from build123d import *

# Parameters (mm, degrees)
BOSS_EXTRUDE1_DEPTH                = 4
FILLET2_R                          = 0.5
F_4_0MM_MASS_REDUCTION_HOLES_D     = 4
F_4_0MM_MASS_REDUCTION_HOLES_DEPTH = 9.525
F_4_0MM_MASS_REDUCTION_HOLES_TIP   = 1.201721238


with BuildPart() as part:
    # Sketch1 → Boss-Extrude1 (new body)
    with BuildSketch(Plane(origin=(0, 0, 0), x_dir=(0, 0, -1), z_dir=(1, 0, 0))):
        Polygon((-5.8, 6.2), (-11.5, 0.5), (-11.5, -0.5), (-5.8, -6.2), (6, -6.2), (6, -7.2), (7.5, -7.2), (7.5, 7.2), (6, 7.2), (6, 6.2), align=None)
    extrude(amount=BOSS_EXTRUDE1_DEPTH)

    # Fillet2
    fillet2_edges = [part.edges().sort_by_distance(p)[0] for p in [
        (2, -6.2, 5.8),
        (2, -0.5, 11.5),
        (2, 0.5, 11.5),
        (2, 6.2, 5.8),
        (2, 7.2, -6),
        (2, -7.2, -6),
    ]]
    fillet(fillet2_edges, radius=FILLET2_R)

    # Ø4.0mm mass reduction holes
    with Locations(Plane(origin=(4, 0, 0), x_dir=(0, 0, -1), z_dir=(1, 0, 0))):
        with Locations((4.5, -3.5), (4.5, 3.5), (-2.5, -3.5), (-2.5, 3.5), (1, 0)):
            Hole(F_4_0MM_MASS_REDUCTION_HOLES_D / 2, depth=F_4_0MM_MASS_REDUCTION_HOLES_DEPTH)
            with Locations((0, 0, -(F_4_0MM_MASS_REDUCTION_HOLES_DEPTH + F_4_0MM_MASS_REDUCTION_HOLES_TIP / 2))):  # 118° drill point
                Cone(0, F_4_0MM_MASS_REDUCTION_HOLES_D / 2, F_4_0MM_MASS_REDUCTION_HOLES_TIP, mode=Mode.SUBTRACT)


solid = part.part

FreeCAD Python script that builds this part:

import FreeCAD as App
import Part
import Sketcher

V = App.Vector
Q = App.Units.Quantity


def edges_at(feature, points):
    """Names of the edges that pass closest to the given points."""
    edges = feature.Shape.Edges
    near = lambda p: min(range(len(edges)), key=lambda i: edges[i].distToShape(Part.Vertex(*p))[0])
    return sorted({f"Edge{near(p) + 1}" for p in points})

doc = App.newDocument("Part")
body = doc.addObject("PartDesign::Body", "Body")

sketch1 = body.newObject("Sketcher::SketchObject", "Sketch")
sketch1.AttachmentSupport = (doc.getObject("YZ_Plane"), [""])
sketch1.MapMode = "FlatFace"
sketch1.addGeometry([
    Part.LineSegment(V(6.2, 5.8, 0), V(0.5, 11.5, 0)),
    Part.LineSegment(V(0.5, 11.5, 0), V(-0.5, 11.5, 0)),
    Part.LineSegment(V(-0.5, 11.5, 0), V(-6.2, 5.8, 0)),
    Part.LineSegment(V(-6.2, 5.8, 0), V(-6.2, -6, 0)),
    Part.LineSegment(V(-6.2, -6, 0), V(-7.2, -6, 0)),
    Part.LineSegment(V(-7.2, -6, 0), V(-7.2, -7.5, 0)),
    Part.LineSegment(V(-7.2, -7.5, 0), V(7.2, -7.5, 0)),
    Part.LineSegment(V(7.2, -7.5, 0), V(7.2, -6, 0)),
    Part.LineSegment(V(7.2, -6, 0), V(6.2, -6, 0)),
    Part.LineSegment(V(6.2, -6, 0), V(6.2, 5.8, 0)),
], False)
sketch1.addConstraint([
    Sketcher.Constraint("Coincident", 0, 2, 1, 1),
    Sketcher.Constraint("Coincident", 1, 2, 2, 1),
    Sketcher.Constraint("Coincident", 2, 2, 3, 1),
    Sketcher.Constraint("Coincident", 3, 2, 4, 1),
    Sketcher.Constraint("Coincident", 4, 2, 5, 1),
    Sketcher.Constraint("Coincident", 5, 2, 6, 1),
    Sketcher.Constraint("Coincident", 6, 2, 7, 1),
    Sketcher.Constraint("Coincident", 7, 2, 8, 1),
    Sketcher.Constraint("Coincident", 8, 2, 9, 1),
    Sketcher.Constraint("Coincident", 9, 2, 0, 1),
    Sketcher.Constraint("Horizontal", 1),
    Sketcher.Constraint("Vertical", 3),
    Sketcher.Constraint("Horizontal", 4),
    Sketcher.Constraint("Vertical", 5),
    Sketcher.Constraint("Horizontal", 6),
    Sketcher.Constraint("Vertical", 7),
    Sketcher.Constraint("Horizontal", 8),
    Sketcher.Constraint("Vertical", 9),
    Sketcher.Constraint("Symmetric", 4, 2, 7, 2, -2),
    Sketcher.Constraint("Symmetric", 2, 2, 9, 2, -2),
    Sketcher.Constraint("Perpendicular", 0, 2),
    Sketcher.Constraint("Equal", 1, 4),
    Sketcher.Constraint("Equal", 0, 2),
    Sketcher.Constraint("DistanceX", 1, 2, 1, 1, Q("1 mm")),
    Sketcher.Constraint("DistanceX", 6, 1, 6, 2, Q("14.4 mm")),
    Sketcher.Constraint("DistanceY", 3, 2, 3, 1, Q("11.8 mm")),
    Sketcher.Constraint("DistanceY", 5, 2, 5, 1, Q("1.5 mm")),
    Sketcher.Constraint("DistanceY", 3, 2, -1, 1, Q("6 mm")),
])
pad1 = body.newObject("PartDesign::Pad", "Pad")
pad1.Profile = sketch1
pad1.Length = 4
doc.recompute()

fillet = body.newObject("PartDesign::Fillet", "Fillet")
fillet.Base = (pad1, edges_at(pad1, [
    (2, -6.2, 5.8),
    (2, -0.5, 11.5),
    (2, 0.5, 11.5),
    (2, 6.2, 5.8),
    (2, 7.2, -6),
    (2, -7.2, -6),
]))
fillet.Radius = 0.5

sketch2 = body.newObject("Sketcher::SketchObject", "Sketch001")
sketch2.AttachmentSupport = (doc.getObject("YZ_Plane"), [""])
sketch2.MapMode = "FlatFace"
sketch2.AttachmentOffset = App.Placement(V(0, 0, 4), App.Rotation())
sketch2.addGeometry([
    Part.Circle(V(-3.5, -4.5, 0), V(0, 0, 1), 2),
    Part.Circle(V(3.5, -4.5, 0), V(0, 0, 1), 2),
    Part.Circle(V(-3.5, 2.5, 0), V(0, 0, 1), 2),
    Part.Circle(V(3.5, 2.5, 0), V(0, 0, 1), 2),
    Part.Circle(V(0, -1, 0), V(0, 0, 1), 2),
], False)
sketch2.addConstraint([
    Sketcher.Constraint("Equal", 0, 1),
    Sketcher.Constraint("Equal", 1, 2),
    Sketcher.Constraint("Equal", 2, 3),
    Sketcher.Constraint("Equal", 3, 4),
    Sketcher.Constraint("Symmetric", 0, 3, 1, 3, -2),
    Sketcher.Constraint("Symmetric", 2, 3, 3, 3, -2),
    Sketcher.Constraint("PointOnObject", 4, 3, -2),
    Sketcher.Constraint("Vertical", 0, 3, 2, 3),
    Sketcher.Constraint("Diameter", 0, Q("4 mm")),
    Sketcher.Constraint("DistanceY", 4, 3, -1, 1, Q("1 mm")),
    Sketcher.Constraint("DistanceX", 0, 3, 1, 3, Q("7 mm")),
    Sketcher.Constraint("DistanceY", 0, 3, 2, 3, Q("7 mm")),
    Sketcher.Constraint("DistanceY", 0, 3, -1, 1, Q("4.5 mm")),
])
doc.recompute()
hole = body.newObject("PartDesign::Hole", "Hole")
hole.Profile = sketch2
hole.ThreadType = "None"
hole.Diameter = 4
hole.DepthType = "Dimension"
hole.Depth = 9.525
hole.DrillPoint = "Angled"
hole.DrillPointAngle = 118

doc.recompute()
